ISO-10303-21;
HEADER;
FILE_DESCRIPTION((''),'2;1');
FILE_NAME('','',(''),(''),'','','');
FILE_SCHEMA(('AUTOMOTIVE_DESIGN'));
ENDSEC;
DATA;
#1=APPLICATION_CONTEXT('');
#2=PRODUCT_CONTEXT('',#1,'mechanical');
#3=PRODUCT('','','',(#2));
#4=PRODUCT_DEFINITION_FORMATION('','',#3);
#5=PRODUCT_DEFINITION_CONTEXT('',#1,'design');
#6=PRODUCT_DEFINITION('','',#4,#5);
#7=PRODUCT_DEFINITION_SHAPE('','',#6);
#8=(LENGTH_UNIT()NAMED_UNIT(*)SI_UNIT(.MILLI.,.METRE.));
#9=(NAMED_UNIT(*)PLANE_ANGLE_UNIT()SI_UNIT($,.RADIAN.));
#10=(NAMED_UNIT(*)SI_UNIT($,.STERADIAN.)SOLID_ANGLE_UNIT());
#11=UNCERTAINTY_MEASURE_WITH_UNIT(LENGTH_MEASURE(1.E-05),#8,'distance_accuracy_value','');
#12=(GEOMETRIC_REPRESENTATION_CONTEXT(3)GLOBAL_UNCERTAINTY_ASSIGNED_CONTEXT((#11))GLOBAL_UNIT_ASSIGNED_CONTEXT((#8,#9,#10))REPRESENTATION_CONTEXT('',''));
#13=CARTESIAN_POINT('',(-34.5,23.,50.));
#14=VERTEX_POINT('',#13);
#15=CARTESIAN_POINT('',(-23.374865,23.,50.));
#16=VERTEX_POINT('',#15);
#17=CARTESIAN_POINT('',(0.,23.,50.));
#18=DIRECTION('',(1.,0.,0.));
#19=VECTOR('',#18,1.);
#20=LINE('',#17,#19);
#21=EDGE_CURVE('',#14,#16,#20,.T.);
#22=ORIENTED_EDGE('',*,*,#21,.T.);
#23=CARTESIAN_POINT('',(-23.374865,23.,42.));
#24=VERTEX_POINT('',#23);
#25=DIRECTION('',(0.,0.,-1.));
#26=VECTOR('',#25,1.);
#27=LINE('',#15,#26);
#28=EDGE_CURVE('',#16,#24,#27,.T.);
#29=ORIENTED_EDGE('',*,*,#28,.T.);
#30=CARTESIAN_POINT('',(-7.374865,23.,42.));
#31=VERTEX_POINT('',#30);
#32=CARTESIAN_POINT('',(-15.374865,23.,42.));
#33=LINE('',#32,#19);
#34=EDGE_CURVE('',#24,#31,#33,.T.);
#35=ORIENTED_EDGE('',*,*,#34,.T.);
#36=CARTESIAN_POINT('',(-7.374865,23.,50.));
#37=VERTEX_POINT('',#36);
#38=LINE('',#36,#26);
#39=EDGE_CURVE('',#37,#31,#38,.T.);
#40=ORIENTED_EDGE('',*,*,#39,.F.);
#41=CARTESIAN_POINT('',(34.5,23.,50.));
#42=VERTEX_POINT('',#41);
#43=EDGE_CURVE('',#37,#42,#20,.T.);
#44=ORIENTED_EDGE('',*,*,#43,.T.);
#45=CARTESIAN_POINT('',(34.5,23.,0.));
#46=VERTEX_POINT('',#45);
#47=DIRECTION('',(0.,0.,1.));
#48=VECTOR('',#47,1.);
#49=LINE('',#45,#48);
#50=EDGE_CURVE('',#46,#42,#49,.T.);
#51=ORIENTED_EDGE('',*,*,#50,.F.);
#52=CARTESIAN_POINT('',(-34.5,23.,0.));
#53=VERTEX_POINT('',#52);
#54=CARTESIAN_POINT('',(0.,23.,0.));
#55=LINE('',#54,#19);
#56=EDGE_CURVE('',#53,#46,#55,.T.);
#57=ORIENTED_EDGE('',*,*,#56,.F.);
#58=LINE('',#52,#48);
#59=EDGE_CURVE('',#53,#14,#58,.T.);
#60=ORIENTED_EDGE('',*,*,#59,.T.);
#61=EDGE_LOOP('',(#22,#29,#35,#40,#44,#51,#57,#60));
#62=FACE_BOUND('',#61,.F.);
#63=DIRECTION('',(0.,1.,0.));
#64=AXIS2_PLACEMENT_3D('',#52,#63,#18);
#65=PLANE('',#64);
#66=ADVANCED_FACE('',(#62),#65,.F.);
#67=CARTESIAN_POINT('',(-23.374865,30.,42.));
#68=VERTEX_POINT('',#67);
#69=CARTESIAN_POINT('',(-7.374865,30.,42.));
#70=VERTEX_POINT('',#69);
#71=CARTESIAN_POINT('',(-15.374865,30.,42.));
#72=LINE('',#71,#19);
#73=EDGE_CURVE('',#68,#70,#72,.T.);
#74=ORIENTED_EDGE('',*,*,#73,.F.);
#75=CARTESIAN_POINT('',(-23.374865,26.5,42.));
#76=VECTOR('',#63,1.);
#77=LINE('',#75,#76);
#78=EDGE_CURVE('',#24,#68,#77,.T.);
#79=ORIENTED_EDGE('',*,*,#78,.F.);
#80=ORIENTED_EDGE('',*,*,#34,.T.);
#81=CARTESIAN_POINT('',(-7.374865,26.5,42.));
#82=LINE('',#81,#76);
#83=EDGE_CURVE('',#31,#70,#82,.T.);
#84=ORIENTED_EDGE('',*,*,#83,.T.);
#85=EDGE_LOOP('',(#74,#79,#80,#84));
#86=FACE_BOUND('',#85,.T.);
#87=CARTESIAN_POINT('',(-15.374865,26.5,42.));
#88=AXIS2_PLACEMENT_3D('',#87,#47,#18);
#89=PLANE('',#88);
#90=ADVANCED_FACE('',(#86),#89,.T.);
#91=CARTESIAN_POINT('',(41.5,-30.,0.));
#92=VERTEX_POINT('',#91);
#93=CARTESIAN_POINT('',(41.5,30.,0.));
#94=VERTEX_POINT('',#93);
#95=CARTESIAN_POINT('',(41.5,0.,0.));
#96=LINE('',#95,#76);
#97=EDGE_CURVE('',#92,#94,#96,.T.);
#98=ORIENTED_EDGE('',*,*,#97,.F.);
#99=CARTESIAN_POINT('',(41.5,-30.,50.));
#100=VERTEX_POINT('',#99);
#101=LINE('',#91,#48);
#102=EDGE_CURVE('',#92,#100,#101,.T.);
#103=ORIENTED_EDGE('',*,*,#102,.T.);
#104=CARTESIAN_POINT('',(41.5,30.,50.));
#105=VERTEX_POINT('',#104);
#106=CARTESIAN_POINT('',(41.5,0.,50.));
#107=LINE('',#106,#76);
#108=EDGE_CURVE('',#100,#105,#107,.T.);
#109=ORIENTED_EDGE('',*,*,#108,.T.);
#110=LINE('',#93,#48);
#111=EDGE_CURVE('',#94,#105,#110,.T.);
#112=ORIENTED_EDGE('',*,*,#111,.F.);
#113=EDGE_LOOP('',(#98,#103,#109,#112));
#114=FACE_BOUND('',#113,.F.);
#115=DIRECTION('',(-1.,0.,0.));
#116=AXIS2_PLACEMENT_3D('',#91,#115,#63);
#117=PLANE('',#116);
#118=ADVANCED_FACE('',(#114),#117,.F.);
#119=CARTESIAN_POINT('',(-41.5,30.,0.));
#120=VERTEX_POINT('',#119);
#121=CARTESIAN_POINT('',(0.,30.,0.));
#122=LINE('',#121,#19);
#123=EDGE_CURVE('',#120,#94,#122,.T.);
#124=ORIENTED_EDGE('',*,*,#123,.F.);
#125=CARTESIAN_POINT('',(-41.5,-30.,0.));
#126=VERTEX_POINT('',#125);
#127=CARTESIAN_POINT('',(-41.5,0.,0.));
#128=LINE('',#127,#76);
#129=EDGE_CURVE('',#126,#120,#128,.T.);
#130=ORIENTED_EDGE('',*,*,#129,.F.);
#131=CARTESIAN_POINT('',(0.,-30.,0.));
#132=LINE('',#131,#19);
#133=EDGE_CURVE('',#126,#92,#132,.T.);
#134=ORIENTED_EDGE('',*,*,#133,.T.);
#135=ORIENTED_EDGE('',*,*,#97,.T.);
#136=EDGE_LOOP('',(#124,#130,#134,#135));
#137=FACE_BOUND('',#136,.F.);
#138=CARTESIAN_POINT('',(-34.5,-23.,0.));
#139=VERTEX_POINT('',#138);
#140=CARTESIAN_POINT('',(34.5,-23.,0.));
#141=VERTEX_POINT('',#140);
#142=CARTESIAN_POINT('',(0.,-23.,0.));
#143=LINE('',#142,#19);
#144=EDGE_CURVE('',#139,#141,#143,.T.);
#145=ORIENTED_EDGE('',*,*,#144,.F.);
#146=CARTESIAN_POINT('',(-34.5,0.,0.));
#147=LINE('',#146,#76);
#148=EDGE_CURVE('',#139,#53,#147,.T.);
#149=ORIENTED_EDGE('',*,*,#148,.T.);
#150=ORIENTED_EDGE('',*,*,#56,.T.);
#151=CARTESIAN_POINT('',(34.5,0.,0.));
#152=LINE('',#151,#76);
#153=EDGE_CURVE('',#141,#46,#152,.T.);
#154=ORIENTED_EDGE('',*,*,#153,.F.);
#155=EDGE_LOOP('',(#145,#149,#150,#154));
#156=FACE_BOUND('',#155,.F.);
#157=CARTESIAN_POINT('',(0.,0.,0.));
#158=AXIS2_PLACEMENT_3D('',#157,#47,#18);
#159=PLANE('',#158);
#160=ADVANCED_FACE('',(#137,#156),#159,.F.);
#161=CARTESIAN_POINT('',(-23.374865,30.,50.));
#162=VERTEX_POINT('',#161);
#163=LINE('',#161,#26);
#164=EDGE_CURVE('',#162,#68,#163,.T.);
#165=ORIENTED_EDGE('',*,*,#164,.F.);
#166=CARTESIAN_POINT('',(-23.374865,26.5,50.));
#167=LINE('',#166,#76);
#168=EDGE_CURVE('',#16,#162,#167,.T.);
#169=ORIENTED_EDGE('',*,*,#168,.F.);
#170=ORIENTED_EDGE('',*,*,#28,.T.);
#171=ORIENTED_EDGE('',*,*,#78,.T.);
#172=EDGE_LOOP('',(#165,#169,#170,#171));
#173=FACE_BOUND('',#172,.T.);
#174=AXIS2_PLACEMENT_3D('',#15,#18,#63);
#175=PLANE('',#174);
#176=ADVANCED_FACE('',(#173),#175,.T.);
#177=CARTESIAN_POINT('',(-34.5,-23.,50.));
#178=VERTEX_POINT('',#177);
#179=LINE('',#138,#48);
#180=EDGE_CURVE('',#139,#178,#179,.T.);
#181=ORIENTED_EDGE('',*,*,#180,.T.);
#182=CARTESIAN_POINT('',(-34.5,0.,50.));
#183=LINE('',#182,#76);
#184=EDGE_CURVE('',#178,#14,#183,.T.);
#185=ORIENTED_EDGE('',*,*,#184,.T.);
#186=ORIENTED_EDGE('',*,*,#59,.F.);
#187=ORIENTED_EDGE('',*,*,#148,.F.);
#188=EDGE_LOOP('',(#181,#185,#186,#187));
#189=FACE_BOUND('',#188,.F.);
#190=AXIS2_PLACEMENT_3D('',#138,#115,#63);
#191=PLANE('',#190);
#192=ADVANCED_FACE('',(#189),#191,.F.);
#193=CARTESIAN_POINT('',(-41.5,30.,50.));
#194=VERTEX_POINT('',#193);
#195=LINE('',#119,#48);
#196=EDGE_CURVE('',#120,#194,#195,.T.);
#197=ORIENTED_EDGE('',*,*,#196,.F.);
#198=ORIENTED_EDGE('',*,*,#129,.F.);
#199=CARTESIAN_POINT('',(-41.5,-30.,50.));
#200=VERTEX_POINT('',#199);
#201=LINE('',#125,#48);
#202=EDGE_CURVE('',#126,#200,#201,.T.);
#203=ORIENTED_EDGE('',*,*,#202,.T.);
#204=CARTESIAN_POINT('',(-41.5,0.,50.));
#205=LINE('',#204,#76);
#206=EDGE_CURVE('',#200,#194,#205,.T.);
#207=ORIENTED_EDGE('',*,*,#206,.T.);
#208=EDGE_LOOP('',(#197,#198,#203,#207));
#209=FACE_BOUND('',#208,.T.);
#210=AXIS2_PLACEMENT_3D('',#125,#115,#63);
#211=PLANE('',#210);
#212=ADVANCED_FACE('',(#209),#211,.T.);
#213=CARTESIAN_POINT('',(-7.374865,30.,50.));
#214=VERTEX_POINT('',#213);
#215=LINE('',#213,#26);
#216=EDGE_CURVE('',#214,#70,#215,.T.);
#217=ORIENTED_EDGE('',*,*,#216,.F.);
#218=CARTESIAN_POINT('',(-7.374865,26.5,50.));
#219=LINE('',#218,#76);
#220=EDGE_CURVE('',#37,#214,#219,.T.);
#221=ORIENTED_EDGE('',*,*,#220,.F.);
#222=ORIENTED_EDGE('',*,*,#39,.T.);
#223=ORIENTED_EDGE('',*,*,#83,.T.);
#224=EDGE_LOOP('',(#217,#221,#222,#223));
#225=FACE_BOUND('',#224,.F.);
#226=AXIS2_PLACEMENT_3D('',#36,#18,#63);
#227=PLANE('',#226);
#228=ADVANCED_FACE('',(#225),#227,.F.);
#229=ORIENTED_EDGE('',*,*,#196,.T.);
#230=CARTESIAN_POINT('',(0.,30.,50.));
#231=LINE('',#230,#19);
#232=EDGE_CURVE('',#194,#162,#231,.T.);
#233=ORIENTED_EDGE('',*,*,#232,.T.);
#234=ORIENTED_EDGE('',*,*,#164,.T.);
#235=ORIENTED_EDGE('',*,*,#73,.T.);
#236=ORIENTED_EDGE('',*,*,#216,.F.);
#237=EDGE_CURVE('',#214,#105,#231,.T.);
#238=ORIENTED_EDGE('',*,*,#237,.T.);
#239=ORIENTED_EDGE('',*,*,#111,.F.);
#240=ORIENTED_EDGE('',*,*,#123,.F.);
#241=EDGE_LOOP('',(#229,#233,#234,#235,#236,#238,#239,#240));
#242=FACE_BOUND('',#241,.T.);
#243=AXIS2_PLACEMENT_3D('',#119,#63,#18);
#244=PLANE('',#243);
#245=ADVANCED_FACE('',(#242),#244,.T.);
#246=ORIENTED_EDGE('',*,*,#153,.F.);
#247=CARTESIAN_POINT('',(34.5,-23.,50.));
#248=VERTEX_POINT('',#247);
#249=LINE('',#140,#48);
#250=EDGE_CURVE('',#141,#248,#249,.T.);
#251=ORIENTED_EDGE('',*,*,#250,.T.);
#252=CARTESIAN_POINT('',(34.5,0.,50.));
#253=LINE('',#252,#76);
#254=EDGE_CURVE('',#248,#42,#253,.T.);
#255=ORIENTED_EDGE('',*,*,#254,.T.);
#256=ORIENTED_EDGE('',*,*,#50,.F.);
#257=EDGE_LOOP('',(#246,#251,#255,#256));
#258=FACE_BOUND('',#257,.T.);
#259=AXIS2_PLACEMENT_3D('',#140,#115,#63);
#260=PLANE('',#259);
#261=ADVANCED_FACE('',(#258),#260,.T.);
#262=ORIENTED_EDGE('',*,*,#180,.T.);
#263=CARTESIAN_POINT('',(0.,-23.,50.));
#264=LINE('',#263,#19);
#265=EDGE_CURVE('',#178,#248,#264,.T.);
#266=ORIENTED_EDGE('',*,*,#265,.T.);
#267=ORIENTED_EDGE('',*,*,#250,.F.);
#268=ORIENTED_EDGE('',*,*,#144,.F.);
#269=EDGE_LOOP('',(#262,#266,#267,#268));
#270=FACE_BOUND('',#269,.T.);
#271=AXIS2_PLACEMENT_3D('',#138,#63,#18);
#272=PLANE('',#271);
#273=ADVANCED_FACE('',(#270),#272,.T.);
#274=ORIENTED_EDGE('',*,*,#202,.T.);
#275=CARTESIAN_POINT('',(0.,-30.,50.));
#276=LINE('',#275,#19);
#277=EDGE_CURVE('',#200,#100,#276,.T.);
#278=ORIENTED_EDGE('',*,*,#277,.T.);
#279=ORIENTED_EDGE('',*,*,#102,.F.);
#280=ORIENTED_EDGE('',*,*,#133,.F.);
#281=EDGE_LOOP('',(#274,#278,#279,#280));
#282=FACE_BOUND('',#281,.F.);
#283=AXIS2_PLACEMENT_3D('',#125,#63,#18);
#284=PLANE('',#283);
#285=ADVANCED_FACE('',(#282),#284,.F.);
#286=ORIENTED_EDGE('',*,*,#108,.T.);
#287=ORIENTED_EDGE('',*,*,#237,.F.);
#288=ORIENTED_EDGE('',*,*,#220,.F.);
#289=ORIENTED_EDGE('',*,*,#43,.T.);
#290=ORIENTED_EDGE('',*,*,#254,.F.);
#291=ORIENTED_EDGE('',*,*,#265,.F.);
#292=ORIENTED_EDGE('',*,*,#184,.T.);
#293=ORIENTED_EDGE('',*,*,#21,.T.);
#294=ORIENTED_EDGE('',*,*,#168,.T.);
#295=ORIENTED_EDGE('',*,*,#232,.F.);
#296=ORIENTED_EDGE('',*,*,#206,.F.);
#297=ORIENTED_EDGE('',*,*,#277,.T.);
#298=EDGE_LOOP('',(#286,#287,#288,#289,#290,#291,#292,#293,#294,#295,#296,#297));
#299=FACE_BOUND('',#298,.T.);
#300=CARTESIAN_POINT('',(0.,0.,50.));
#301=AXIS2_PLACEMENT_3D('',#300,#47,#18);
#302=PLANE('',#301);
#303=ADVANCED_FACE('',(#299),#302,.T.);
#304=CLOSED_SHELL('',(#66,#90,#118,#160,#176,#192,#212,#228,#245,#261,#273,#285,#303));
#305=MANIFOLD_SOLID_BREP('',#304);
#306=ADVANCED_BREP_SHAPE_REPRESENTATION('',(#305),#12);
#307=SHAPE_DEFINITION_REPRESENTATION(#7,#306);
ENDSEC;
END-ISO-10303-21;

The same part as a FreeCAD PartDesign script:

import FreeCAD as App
import Part
import Sketcher
from FreeCAD import Vector


def add_polygon(sketch, points):
    """Adds a closed chain of lines whose ends are joined by coincident constraints."""
    first, n = sketch.GeometryCount, len(points)
    for a, b in zip(points, points[1:] + points[:1]):
        sketch.addGeometry(Part.LineSegment(App.Vector(*a, 0), App.Vector(*b, 0)), False)
    for i in range(n):
        sketch.addConstraint(Sketcher.Constraint("Coincident", first + i, 2, first + (i + 1) % n, 1))

doc = App.newDocument("Part")
body = doc.addObject("PartDesign::Body", "Body")

# Sketch on XY plane
sketch1 = body.newObject("Sketcher::SketchObject", "Sketch")
sketch1.AttachmentSupport = (doc.getObject("XY_Plane"), [""])
sketch1.MapMode = "FlatFace"
add_polygon(sketch1, [(-42, 30), (-42, -30), (42, -30), (42, 30)])  # lines 0-3
add_polygon(sketch1, [(34, -23), (-34, -23), (-34, 23), (34, 23)])  # lines 4-7
sketch1.addConstraint(Sketcher.Constraint("Vertical", 0))
sketch1.addConstraint(Sketcher.Constraint("Horizontal", 1))
sketch1.addConstraint(Sketcher.Constraint("Vertical", 2))
sketch1.addConstraint(Sketcher.Constraint("Horizontal", 3))
sketch1.addConstraint(Sketcher.Constraint("Horizontal", 4))
sketch1.addConstraint(Sketcher.Constraint("Vertical", 5))
sketch1.addConstraint(Sketcher.Constraint("Horizontal", 6))
sketch1.addConstraint(Sketcher.Constraint("Vertical", 7))
sketch1.addConstraint(Sketcher.Constraint("Symmetric", 0, 2, 2, 2, -1, 1))
sketch1.addConstraint(Sketcher.Constraint("Symmetric", 4, 2, 6, 2, -1, 1))
sketch1.addConstraint(Sketcher.Constraint("DistanceX", 1, 1, 1, 2, 83.0))
sketch1.addConstraint(Sketcher.Constraint("DistanceX", 4, 2, 4, 1, 69.0))
sketch1.addConstraint(Sketcher.Constraint("DistanceY", 0, 2, 0, 1, 60.0))
sketch1.addConstraint(Sketcher.Constraint("DistanceY", 5, 1, 5, 2, 46.0))
pad1 = body.newObject("PartDesign::Pad", "Pad")
pad1.Profile = sketch1
pad1.Length = 50

# Sketch on XY plane
sketch2 = body.newObject("Sketcher::SketchObject", "Sketch001")
sketch2.AttachmentSupport = (doc.getObject("XY_Plane"), [""])
sketch2.MapMode = "FlatFace"
sketch2.AttachmentOffset = App.Placement(Vector(0, 0, 50), App.Rotation())
add_polygon(sketch2, [(-23, 30), (-23, 23), (-7, 23), (-7, 30)])  # lines 0-3
sketch2.addConstraint(Sketcher.Constraint("Vertical", 0))
sketch2.addConstraint(Sketcher.Constraint("Horizontal", 1))
sketch2.addConstraint(Sketcher.Constraint("Vertical", 2))
sketch2.addConstraint(Sketcher.Constraint("Horizontal", 3))
sketch2.addConstraint(Sketcher.Constraint("DistanceX", 1, 1, 1, 2, 16.0))
sketch2.addConstraint(Sketcher.Constraint("DistanceY", 0, 2, 0, 1, 7.0))
sketch2.addConstraint(Sketcher.Constraint("DistanceY", -1, 1, 0, 2, 23.0))
sketch2.addConstraint(Sketcher.Constraint("DistanceX", 0, 2, -1, 1, 23.374865))
pocket1 = body.newObject("PartDesign::Pocket", "Pocket")
pocket1.Profile = sketch2
pocket1.Length = 8

doc.recompute()
